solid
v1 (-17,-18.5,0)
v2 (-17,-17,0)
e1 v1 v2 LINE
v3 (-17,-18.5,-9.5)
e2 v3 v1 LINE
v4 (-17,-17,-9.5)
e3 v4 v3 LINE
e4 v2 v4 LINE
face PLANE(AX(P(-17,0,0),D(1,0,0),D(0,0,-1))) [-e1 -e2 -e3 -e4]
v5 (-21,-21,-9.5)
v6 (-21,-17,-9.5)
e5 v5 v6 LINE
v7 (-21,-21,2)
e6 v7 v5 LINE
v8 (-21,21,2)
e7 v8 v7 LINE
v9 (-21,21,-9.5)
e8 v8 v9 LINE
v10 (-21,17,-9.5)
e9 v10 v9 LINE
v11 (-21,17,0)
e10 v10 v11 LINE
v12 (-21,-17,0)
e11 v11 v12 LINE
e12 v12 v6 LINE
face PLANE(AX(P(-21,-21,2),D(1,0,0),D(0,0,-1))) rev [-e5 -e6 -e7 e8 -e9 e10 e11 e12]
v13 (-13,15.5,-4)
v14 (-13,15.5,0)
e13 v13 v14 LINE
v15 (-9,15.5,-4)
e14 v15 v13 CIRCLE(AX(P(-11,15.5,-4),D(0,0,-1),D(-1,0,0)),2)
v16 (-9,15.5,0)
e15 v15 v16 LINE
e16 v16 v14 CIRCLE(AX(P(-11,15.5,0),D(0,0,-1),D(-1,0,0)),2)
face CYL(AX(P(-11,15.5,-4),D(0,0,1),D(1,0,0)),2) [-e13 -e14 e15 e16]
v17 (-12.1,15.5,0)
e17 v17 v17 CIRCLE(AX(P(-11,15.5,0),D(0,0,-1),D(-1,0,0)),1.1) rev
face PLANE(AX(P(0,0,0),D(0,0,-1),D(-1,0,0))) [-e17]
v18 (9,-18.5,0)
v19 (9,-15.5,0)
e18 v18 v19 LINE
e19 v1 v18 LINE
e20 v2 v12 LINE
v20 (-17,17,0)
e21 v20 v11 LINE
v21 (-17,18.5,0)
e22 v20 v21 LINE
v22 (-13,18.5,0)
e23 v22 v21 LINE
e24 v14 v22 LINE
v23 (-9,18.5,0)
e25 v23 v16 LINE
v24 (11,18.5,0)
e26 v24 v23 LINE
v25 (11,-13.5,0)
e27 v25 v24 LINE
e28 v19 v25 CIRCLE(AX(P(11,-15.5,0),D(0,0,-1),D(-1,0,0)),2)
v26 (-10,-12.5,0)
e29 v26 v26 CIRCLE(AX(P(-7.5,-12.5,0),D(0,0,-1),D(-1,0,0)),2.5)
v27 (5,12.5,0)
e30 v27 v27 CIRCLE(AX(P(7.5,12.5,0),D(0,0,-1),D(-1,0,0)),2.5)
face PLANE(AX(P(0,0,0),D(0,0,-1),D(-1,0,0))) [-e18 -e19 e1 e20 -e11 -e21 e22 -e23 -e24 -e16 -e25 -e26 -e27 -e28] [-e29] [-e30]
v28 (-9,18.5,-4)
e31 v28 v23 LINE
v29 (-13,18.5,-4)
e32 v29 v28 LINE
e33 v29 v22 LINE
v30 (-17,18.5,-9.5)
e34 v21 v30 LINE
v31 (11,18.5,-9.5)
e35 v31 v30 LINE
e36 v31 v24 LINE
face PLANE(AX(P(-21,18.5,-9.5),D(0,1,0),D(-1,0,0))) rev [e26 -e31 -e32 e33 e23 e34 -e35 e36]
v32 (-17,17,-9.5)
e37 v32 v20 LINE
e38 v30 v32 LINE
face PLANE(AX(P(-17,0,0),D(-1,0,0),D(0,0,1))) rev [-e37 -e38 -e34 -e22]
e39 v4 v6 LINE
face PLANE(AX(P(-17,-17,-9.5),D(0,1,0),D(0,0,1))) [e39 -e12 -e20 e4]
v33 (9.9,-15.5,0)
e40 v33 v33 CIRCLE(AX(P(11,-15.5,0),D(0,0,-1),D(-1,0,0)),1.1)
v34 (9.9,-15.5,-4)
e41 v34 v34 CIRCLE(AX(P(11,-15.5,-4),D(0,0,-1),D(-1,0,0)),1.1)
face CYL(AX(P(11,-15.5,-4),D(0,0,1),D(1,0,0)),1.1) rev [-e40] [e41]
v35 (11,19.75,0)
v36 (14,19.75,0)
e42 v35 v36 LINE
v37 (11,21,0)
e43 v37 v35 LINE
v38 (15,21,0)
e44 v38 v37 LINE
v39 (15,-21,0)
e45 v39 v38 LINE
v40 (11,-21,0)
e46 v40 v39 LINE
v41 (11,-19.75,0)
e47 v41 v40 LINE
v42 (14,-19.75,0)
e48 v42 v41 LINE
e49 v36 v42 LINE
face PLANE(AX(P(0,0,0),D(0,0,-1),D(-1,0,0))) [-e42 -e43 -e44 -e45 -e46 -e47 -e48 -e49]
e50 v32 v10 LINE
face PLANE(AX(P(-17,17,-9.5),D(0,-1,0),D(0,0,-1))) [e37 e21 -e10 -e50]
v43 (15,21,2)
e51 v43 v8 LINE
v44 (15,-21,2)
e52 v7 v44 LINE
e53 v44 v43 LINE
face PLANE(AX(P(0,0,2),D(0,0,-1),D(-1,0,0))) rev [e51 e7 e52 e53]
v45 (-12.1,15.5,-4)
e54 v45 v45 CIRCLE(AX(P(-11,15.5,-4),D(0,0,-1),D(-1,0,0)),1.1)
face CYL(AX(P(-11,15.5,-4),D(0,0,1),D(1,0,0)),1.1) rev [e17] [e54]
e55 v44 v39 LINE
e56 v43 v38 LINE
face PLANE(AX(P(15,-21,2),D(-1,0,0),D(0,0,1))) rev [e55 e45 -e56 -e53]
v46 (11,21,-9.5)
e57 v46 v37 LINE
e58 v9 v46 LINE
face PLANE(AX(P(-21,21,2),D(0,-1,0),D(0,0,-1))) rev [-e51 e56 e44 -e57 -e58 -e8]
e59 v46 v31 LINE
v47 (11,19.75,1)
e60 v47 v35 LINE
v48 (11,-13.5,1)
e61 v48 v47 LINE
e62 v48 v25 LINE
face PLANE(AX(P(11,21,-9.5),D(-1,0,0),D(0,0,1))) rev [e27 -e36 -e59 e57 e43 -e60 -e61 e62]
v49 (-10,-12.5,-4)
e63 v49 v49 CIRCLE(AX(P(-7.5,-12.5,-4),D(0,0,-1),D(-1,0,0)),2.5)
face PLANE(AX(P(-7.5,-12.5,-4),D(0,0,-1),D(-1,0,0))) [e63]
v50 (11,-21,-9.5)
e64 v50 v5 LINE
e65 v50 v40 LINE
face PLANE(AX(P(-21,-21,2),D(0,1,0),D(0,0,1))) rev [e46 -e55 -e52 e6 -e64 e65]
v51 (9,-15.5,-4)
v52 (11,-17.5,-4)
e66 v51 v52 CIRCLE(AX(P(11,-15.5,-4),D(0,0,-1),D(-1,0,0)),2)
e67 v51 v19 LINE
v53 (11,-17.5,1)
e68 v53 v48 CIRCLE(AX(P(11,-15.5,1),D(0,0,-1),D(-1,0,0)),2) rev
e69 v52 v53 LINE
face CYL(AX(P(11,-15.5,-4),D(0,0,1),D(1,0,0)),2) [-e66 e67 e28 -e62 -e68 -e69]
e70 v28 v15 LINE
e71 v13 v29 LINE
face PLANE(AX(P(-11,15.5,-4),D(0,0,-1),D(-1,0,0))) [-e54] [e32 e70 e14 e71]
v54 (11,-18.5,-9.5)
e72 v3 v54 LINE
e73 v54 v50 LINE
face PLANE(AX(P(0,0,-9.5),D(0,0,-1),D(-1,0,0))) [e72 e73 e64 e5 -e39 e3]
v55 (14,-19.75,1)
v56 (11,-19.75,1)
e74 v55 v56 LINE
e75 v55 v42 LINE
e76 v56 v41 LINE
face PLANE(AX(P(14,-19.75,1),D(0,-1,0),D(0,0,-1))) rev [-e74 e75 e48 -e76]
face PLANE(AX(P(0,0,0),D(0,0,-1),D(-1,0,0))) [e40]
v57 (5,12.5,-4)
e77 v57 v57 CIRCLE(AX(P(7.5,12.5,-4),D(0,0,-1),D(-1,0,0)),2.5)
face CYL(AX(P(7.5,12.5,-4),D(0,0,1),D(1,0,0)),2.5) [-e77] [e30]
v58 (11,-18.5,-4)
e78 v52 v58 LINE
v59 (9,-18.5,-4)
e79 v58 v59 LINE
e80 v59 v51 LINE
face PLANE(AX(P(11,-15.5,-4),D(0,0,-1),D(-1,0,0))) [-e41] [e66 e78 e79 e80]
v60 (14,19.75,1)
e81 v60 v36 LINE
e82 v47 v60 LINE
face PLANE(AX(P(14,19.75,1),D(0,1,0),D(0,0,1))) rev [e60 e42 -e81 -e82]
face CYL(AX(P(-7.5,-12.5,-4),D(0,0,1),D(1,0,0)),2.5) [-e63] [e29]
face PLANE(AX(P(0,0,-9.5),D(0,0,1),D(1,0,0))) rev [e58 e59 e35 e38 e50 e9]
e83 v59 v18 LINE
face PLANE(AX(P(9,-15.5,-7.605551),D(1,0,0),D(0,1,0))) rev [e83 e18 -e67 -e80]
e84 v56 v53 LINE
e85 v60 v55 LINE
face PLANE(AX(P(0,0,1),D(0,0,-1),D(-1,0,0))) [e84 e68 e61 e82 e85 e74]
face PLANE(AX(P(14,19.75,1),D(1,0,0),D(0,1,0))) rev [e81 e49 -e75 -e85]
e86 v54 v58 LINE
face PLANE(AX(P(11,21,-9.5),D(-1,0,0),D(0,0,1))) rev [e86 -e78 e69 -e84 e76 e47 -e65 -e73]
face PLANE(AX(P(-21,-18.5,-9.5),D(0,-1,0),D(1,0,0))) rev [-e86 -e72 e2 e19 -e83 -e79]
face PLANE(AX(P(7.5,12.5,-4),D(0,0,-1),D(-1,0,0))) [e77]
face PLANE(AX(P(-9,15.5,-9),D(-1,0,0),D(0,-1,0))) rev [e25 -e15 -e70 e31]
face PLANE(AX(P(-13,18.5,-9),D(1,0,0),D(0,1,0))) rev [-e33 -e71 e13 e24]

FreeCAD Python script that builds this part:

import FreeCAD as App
import Part
import Sketcher
Q = App.Units.Quantity


def add_polygon(sketch, points):
    """Adds a closed chain of lines whose ends are joined by coincident constraints."""
    first, n = sketch.GeometryCount, len(points)
    for a, b in zip(points, points[1:] + points[:1]):
        sketch.addGeometry(Part.LineSegment(App.Vector(*a, 0), App.Vector(*b, 0)), False)
    for i in range(n):
        sketch.addConstraint(Sketcher.Constraint("Coincident", first + i, 2, first + (i + 1) % n, 1))

doc = App.newDocument("Part")
params = doc.addObject("Spreadsheet::Sheet", "Params")
for row, (alias, value) in enumerate([
    ("sketch1_width", "36 mm"),
    ("sketch1_height", "42 mm"),
    ("pad1_length", "2 mm"),
    ("sketch2_width", "32 mm"),
    ("sketch2_height", "2.5 mm"),
    ("pad2_length", "9.5 mm"),
    ("sketch3_width", "3 mm"),
    ("sketch3_height", "39.5 mm"),
    ("pocket1_length", "1 mm"),
    ("sketch4_diameter", "4 mm"),
    ("sketch4_diameter2", "2.2 mm"),
    ("pad3_length", "4 mm"),
    ("sketch5_diameter", "4 mm"),
    ("pad4_length", "1 mm"),
    ("sketch6_width", "4 mm"),
    ("sketch6_height", "3 mm"),
    ("pad5_length", "4 mm"),
    ("sketch7_width", "2 mm"),
    ("sketch7_height", "1 mm"),
    ("sketch7_height2", "3 mm"),
    ("pad6_length", "4 mm"),
    ("sketch8_diameter", "5 mm"),
    ("pad7_length", "4 mm"),
    ("sketch9_width", "1.5 mm"),
    ("sketch9_height", "9.5 mm"),
    ("pad8_length", "4 mm"),
], start=1):
    params.set(f"A{row}", alias)
    params.set(f"B{row}", "=" + value)
    params.setAlias(f"B{row}", alias)

body = doc.addObject("PartDesign::Body", "Body")

# Sketch on XY plane
sketch1 = doc.addObject("Sketcher::SketchObject", "Sketch")
body.addObject(sketch1)
sketch1.AttachmentSupport = (doc.XY_Plane, [""])
sketch1.MapMode = "FlatFace"
add_polygon(sketch1, [(-21, 21), (-21, -21), (15, -21), (15, 21)])  # lines 0-3
sketch1.addConstraint([
    Sketcher.Constraint("Vertical", 0),
    Sketcher.Constraint("Horizontal", 1),
    Sketcher.Constraint("Vertical", 2),
    Sketcher.Constraint("Horizontal", 3),
    Sketcher.Constraint("DistanceX", 1, 1, 1, 2, Q("36 mm")),
    Sketcher.Constraint("DistanceY", 0, 2, 0, 1, Q("42 mm")),
    Sketcher.Constraint("DistanceX", 0, 2, -1, 1, Q("21 mm")),
    Sketcher.Constraint("DistanceY", 0, 2, -1, 1, Q("21 mm")),
])
sketch1.setExpression("Constraints[8]", "Params.sketch1_width")
sketch1.setExpression("Constraints[9]", "Params.sketch1_height")
pad1 = doc.addObject("PartDesign::Pad", "Pad")
body.addObject(pad1)
pad1.Profile = sketch1
pad1.setExpression("Length", "Params.pad1_length")

# Sketch on XY plane
sketch2 = doc.addObject("Sketcher::SketchObject", "Sketch001")
body.addObject(sketch2)
sketch2.AttachmentSupport = (doc.XY_Plane, [""])
sketch2.MapMode = "FlatFace"
add_polygon(sketch2, [(11, 21), (11, 18.5), (-21, 18.5), (-21, 21)])  # lines 0-3
add_polygon(sketch2, [(11, -18.5), (11, -21), (-21, -21), (-21, -18.5)])  # lines 4-7
sketch2.addConstraint([
    Sketcher.Constraint("Vertical", 0),
    Sketcher.Constraint("Horizontal", 1),
    Sketcher.Constraint("Vertical", 2),
    Sketcher.Constraint("Horizontal", 3),
    Sketcher.Constraint("Vertical", 4),
    Sketcher.Constraint("Horizontal", 5),
    Sketcher.Constraint("Vertical", 6),
    Sketcher.Constraint("Horizontal", 7),
    Sketcher.Constraint("Symmetric", 3, 2, 4, 2, -1),
    Sketcher.Constraint("Symmetric", 1, 2, 6, 2, -1),
    Sketcher.Constraint("DistanceX", 1, 2, 1, 1, Q("32 mm")),
    Sketcher.Constraint("DistanceY", 0, 2, 0, 1, Q("2.5 mm")),
    Sketcher.Constraint("DistanceX", -1, 1, 0, 2, Q("11 mm")),
    Sketcher.Constraint("DistanceY", -1, 1, 2, 2, Q("21 mm")),
])
sketch2.setExpression("Constraints[18]", "Params.sketch2_width")
sketch2.setExpression("Constraints[19]", "Params.sketch2_height")
pad2 = doc.addObject("PartDesign::Pad", "Pad001")
body.addObject(pad2)
pad2.Profile = sketch2
pad2.setExpression("Length", "Params.pad2_length")
pad2.Reversed = True

# Sketch on XY plane
sketch3 = doc.addObject("Sketcher::SketchObject", "Sketch002")
body.addObject(sketch3)
sketch3.AttachmentSupport = (doc.XY_Plane, [""])
sketch3.MapMode = "FlatFace"
add_polygon(sketch3, [(14, 19.8), (14, -19.8), (11, -19.8), (11, 19.8)])  # lines 0-3
sketch3.addConstraint([
    Sketcher.Constraint("Vertical", 0),
    Sketcher.Constraint("Horizontal", 1),
    Sketcher.Constraint("Vertical", 2),
    Sketcher.Constraint("Horizontal", 3),
    Sketcher.Constraint("DistanceX", 1, 2, 1, 1, Q("3 mm")),
    Sketcher.Constraint("DistanceY", 0, 2, 0, 1, Q("39.5 mm")),
    Sketcher.Constraint("DistanceX", -1, 1, 0, 2, Q("14 mm")),
    Sketcher.Constraint("DistanceY", 0, 2, -1, 1, Q("19.75 mm")),
])
sketch3.setExpression("Constraints[8]", "Params.sketch3_width")
sketch3.setExpression("Constraints[9]", "Params.sketch3_height")
pocket1 = doc.addObject("PartDesign::Pocket", "Pocket")
body.addObject(pocket1)
pocket1.Profile = sketch3
pocket1.setExpression("Length", "Params.pocket1_length")
pocket1.Reversed = True

# Sketch on XY plane
sketch4 = doc.addObject("Sketcher::SketchObject", "Sketch003")
body.addObject(sketch4)
sketch4.AttachmentSupport = (doc.XY_Plane, [""])
sketch4.MapMode = "FlatFace"
sketch4.addGeometry([
    Part.Circle(App.Vector(-11, 15.5, 0), App.Vector(0, 0, 1), 2),
    Part.Circle(App.Vector(-11, 15.5, 0), App.Vector(0, 0, 1), 1.1),
    Part.Circle(App.Vector(11, -15.5, 0), App.Vector(0, 0, 1), 2),
    Part.Circle(App.Vector(11, -15.5, 0), App.Vector(0, 0, 1), 1.1),
], False)
sketch4.addConstraint([
    Sketcher.Constraint("Coincident", 1, 3, 0, 3),
    Sketcher.Constraint("Coincident", 3, 3, 2, 3),
    Sketcher.Constraint("Equal", 0, 2),
    Sketcher.Constraint("Equal", 1, 3),
    Sketcher.Constraint("Symmetric", 0, 3, 2, 3, -1, 1),
    Sketcher.Constraint("Diameter", 0, Q("4 mm")),
    Sketcher.Constraint("Diameter", 1, Q("2.2 mm")),
    Sketcher.Constraint("DistanceX", 0, 3, -1, 1, Q("11 mm")),
    Sketcher.Constraint("DistanceY", 2, 3, 0, 3, Q("31 mm")),
])
sketch4.setExpression("Constraints[5]", "Params.sketch4_diameter")
sketch4.setExpression("Constraints[6]", "Params.sketch4_diameter2")
pad3 = doc.addObject("PartDesign::Pad", "Pad002")
body.addObject(pad3)
pad3.Profile = sketch4
pad3.setExpression("Length", "Params.pad3_length")
pad3.Reversed = True

# Sketch on XY plane
sketch5 = doc.addObject("Sketcher::SketchObject", "Sketch004")
body.addObject(sketch5)
sketch5.AttachmentSupport = (doc.XY_Plane, [""])
sketch5.MapMode = "FlatFace"
sketch5.addGeometry(Part.Circle(App.Vector(11, -15.5, 0), App.Vector(0, 0, 1), 2), False)
sketch5.addConstraint([
    Sketcher.Constraint("Diameter", 0, Q("4 mm")),
    Sketcher.Constraint("DistanceX", -1, 1, 0, 3, Q("11 mm")),
    Sketcher.Constraint("DistanceY", 0, 3, -1, 1, Q("15.5 mm")),
])
sketch5.setExpression("Constraints[0]", "Params.sketch5_diameter")
pad4 = doc.addObject("PartDesign::Pad", "Pad003")
body.addObject(pad4)
pad4.Profile = sketch5
pad4.setExpression("Length", "Params.pad4_length")

# Sketch on XY plane
sketch6 = doc.addObject("Sketcher::SketchObject", "Sketch005")
body.addObject(sketch6)
sketch6.AttachmentSupport = (doc.XY_Plane, [""])
sketch6.MapMode = "FlatFace"
add_polygon(sketch6, [(-9, 18.5), (-9, 15.5), (-11, 17.5), (-13, 15.5), (-13, 18.5)])  # lines 0-4
sketch6.addConstraint([
    Sketcher.Constraint("Vertical", 0),
    Sketcher.Constraint("Vertical", 3),
    Sketcher.Constraint("Horizontal", 4),
    Sketcher.Constraint("Perpendicular", 1, 2),
    Sketcher.Constraint("Horizontal", 0, 2, 2, 2),
    Sketcher.Constraint("Equal", 1, 2),
    Sketcher.Constraint("DistanceX", 4, 1, 4, 2, Q("4 mm")),
    Sketcher.Constraint("DistanceY", 0, 2, 0, 1, Q("3 mm")),
    Sketcher.Constraint("DistanceX", 0, 2, -1, 1, Q("9 mm")),
    Sketcher.Constraint("DistanceY", -1, 1, 0, 2, Q("15.5 mm")),
])
sketch6.setExpression("Constraints[11]", "Params.sketch6_width")
sketch6.setExpression("Constraints[12]", "Params.sketch6_height")
pad5 = doc.addObject("PartDesign::Pad", "Pad004")
body.addObject(pad5)
pad5.Profile = sketch6
pad5.setExpression("Length", "Params.pad5_length")
pad5.Reversed = True

# Sketch on XY plane
sketch7 = doc.addObject("Sketcher::SketchObject", "Sketch006")
body.addObject(sketch7)
sketch7.AttachmentSupport = (doc.XY_Plane, [""])
sketch7.MapMode = "FlatFace"
add_polygon(sketch7, [(11, -17.5), (11, -18.5), (9, -18.5), (9, -15.5)])  # lines 0-3
sketch7.addConstraint([
    Sketcher.Constraint("Vertical", 0),
    Sketcher.Constraint("Horizontal", 1),
    Sketcher.Constraint("Vertical", 2),
    Sketcher.Constraint("DistanceX", 1, 2, 1, 1, Q("2 mm")),
    Sketcher.Constraint("DistanceY", 0, 2, 0, 1, Q("1 mm")),
    Sketcher.Constraint("DistanceY", 2, 1, 2, 2, Q("3 mm")),
    Sketcher.Constraint("DistanceX", -1, 1, 0, 2, Q("11 mm")),
    Sketcher.Constraint("DistanceY", 0, 2, -1, 1, Q("18.5 mm")),
])
sketch7.setExpression("Constraints[7]", "Params.sketch7_width")
sketch7.setExpression("Constraints[8]", "Params.sketch7_height")
sketch7.setExpression("Constraints[9]", "Params.sketch7_height2")
pad6 = doc.addObject("PartDesign::Pad", "Pad005")
body.addObject(pad6)
pad6.Profile = sketch7
pad6.setExpression("Length", "Params.pad6_length")
pad6.Reversed = True

# Sketch on XY plane
sketch8 = doc.addObject("Sketcher::SketchObject", "Sketch007")
body.addObject(sketch8)
sketch8.AttachmentSupport = (doc.XY_Plane, [""])
sketch8.MapMode = "FlatFace"
sketch8.addGeometry([
    Part.Circle(App.Vector(-7.5, -12.5, 0), App.Vector(0, 0, 1), 2.5),
    Part.Circle(App.Vector(7.5, 12.5, 0), App.Vector(0, 0, 1), 2.5),
], False)
sketch8.addConstraint([
    Sketcher.Constraint("Equal", 0, 1),
    Sketcher.Constraint("Symmetric", 0, 3, 1, 3, -1, 1),
    Sketcher.Constraint("Diameter", 0, Q("5 mm")),
    Sketcher.Constraint("DistanceX", 0, 3, 1, 3, Q("15 mm")),
    Sketcher.Constraint("DistanceY", 0, 3, 1, 3, Q("25 mm")),
])
sketch8.setExpression("Constraints[2]", "Params.sketch8_diameter")
pad7 = doc.addObject("PartDesign::Pad", "Pad006")
body.addObject(pad7)
pad7.Profile = sketch8
pad7.setExpression("Length", "Params.pad7_length")
pad7.Reversed = True

# Sketch on YZ plane
sketch9 = doc.addObject("Sketcher::SketchObject", "Sketch008")
body.addObject(sketch9)
sketch9.AttachmentSupport = (doc.YZ_Plane, [""])
sketch9.MapMode = "FlatFace"
sketch9.AttachmentOffset = App.Placement(App.Vector(0, 0, -21), App.Rotation())
add_polygon(sketch9, [(-17, -9.5), (-18.5, -9.5), (-18.5, 0), (-17, 0)])  # lines 0-3
add_polygon(sketch9, [(18.5, -9.5), (17, -9.5), (17, 0), (18.5, 0)])  # lines 4-7
sketch9.addConstraint([
    Sketcher.Constraint("Horizontal", 0),
    Sketcher.Constraint("Vertical", 1),
    Sketcher.Constraint("Horizontal", 2),
    Sketcher.Constraint("Vertical", 3),
    Sketcher.Constraint("Horizontal", 4),
    Sketcher.Constraint("Vertical", 5),
    Sketcher.Constraint("Horizontal", 6),
    Sketcher.Constraint("Vertical", 7),
    Sketcher.Constraint("Symmetric", 2, 2, 5, 2, -1, 1),
    Sketcher.Constraint("Symmetric", 1, 2, 6, 2, -2),
    Sketcher.Constraint("Horizontal", 3, 2, 4, 2),
    Sketcher.Constraint("DistanceX", 0, 2, 0, 1, Q("1.5 mm")),
    Sketcher.Constraint("DistanceY", 1, 1, 1, 2, Q("9.5 mm")),
    Sketcher.Constraint("DistanceX", 2, 2, -1, 1, Q("17 mm")),
])
sketch9.setExpression("Constraints[19]", "Params.sketch9_width")
sketch9.setExpression("Constraints[20]", "Params.sketch9_height")
pad8 = doc.addObject("PartDesign::Pad", "Pad007")
body.addObject(pad8)
pad8.Profile = sketch9
pad8.setExpression("Length", "Params.pad8_length")

doc.recompute()
